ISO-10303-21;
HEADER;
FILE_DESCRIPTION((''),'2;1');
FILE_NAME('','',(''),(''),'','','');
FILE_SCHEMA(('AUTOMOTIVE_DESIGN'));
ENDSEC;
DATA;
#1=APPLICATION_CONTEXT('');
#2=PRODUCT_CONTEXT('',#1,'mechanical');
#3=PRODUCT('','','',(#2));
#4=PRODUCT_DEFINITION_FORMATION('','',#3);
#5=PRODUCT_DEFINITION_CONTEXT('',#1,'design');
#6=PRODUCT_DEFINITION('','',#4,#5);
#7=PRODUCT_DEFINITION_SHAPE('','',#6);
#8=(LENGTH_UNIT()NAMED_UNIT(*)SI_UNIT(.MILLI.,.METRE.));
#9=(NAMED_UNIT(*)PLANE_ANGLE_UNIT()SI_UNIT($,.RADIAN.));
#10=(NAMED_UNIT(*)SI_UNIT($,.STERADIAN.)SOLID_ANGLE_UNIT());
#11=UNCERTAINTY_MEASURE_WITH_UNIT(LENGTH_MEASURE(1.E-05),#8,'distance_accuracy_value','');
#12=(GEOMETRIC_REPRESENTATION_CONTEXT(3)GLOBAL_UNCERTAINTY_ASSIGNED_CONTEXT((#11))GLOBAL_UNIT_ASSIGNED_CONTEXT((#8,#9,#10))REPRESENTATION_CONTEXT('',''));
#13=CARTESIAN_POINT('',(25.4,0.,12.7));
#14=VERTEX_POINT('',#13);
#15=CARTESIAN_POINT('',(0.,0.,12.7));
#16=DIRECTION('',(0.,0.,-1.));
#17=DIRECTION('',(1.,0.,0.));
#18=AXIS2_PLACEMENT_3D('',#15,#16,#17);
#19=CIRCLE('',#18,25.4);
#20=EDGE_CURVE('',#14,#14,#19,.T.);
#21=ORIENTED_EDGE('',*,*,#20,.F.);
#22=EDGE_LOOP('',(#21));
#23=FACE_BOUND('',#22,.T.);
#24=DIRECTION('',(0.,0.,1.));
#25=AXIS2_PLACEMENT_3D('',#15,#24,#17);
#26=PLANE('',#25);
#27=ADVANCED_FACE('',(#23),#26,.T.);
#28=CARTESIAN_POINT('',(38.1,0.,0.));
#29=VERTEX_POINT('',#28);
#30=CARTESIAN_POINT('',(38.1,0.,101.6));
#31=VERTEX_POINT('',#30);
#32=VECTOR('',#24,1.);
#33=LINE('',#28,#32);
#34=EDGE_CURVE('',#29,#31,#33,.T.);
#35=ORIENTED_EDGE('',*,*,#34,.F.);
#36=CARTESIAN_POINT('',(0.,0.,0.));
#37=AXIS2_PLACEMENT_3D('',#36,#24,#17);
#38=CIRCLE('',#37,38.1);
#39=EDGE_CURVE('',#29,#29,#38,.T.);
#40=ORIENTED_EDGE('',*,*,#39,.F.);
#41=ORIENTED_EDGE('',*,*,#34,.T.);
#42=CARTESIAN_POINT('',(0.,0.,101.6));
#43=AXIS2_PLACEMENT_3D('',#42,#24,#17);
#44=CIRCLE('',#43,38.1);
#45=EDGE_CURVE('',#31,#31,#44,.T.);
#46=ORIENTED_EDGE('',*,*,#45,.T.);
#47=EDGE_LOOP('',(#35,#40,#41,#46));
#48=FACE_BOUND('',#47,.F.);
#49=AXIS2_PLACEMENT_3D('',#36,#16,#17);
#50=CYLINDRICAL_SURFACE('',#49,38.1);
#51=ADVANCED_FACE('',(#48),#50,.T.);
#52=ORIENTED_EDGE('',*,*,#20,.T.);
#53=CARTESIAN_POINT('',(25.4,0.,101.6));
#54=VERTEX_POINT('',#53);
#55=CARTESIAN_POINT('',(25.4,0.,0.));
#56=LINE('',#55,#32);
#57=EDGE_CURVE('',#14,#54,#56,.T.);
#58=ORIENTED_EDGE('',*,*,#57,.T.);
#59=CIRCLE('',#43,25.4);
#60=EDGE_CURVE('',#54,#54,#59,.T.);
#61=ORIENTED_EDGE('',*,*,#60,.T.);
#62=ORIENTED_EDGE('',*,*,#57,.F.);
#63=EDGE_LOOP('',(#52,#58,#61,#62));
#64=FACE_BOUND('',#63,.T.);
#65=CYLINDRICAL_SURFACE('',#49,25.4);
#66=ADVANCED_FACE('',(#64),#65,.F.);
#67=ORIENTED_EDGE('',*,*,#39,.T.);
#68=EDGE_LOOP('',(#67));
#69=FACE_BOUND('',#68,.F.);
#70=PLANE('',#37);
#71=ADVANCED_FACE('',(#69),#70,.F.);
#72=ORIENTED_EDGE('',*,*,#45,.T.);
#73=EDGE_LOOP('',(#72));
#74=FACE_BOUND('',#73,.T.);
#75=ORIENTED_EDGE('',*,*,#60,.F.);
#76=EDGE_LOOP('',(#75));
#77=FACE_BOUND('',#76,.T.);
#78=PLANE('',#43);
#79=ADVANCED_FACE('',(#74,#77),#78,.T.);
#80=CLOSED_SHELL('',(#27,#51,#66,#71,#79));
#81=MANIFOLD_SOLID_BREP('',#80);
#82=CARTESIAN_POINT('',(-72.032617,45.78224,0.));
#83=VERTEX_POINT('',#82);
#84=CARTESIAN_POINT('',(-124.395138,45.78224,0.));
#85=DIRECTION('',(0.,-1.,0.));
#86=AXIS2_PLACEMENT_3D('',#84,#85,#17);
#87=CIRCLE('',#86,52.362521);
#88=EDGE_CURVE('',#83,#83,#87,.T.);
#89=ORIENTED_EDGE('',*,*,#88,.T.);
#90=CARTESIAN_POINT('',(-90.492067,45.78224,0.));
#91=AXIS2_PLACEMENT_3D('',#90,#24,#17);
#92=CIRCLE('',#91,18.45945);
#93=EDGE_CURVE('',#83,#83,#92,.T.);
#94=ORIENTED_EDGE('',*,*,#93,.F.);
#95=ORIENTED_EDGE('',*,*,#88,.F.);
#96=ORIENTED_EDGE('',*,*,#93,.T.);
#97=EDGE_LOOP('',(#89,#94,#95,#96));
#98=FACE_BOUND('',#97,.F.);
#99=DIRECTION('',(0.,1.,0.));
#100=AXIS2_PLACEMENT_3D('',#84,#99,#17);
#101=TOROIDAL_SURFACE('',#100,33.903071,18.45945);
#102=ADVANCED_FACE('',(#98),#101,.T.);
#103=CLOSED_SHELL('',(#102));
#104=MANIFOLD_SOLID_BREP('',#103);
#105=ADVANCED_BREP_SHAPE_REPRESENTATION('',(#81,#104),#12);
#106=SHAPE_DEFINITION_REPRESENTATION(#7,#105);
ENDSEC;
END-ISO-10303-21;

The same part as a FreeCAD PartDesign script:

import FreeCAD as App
import Part
import Sketcher
from FreeCAD import Vector
Q = App.Units.Quantity


def faces_at(feature, points):
    """Names of the faces that lie closest to the given points."""
    faces = feature.Shape.Faces
    near = lambda p: min(range(len(faces)), key=lambda i: faces[i].distToShape(Part.Vertex(*p))[0])
    return sorted({f"Face{near(p) + 1}" for p in points})

doc = App.newDocument("Part")
body = doc.addObject("PartDesign::Body", "Body")

# Sketch on XY plane
sketch1 = body.newObject("Sketcher::SketchObject", "Sketch")
sketch1.AttachmentSupport = (doc.getObject("XY_Plane"), [""])
sketch1.MapMode = "FlatFace"
sketch1.addGeometry(Part.Circle(Vector(0, 0, 0), Vector(0, 0, 1), 38.1), False)
sketch1.addConstraint([
    Sketcher.Constraint("Coincident", 0, 3, -1, 1),
    Sketcher.Constraint("Diameter", 0, Q("3 in")),
])
pad1 = body.newObject("PartDesign::Pad", "Pad")
pad1.Profile = sketch1
pad1.Length = Q("4 in")
doc.recompute()

thickness = body.newObject("PartDesign::Thickness", "Thickness")
thickness.Base = (pad1, faces_at(pad1, [(0, 0, 101.6)]))
thickness.Value = Q("0.5 in")
thickness.Reversed = True
thickness.Join = "Arc"
body2 = doc.addObject("PartDesign::Body", "Body001")

# Sketch on XY plane
sketch2 = body2.newObject("Sketcher::SketchObject", "Sketch001")
sketch2.AttachmentSupport = (doc.getObject("XY_Plane001"), [""])
sketch2.MapMode = "FlatFace"
sketch2.addGeometry(Part.Circle(Vector(-90.492067, 45.78224, 0), Vector(0, 0, 1), 18.45945), False)
sketch2.addGeometry(Part.LineSegment(Vector(-124.395138, 45.78224, 0), Vector(-124.395138, 35.78224, 0)), True)  # axis
sketch2.addConstraint([
    Sketcher.Constraint("Vertical", 1),
    Sketcher.Constraint("Horizontal", 0, 3, 1, 1),
    Sketcher.Constraint("Diameter", 0, Q("1.4535 in")),
    Sketcher.Constraint("DistanceY", 1, 2, 1, 1, 10.0),
    Sketcher.Constraint("DistanceY", -1, 1, 0, 3, 45.78224),
    Sketcher.Constraint("DistanceX", 1, 1, -1, 1, 124.395138),
    Sketcher.Constraint("DistanceX", 1, 1, 0, 3, 33.903071),
])
revolution = body2.newObject("PartDesign::Revolution", "Revolution")
revolution.Profile = sketch2
revolution.ReferenceAxis = (sketch2, ["Axis0"])
revolution.Angle = 360

doc.recompute()
